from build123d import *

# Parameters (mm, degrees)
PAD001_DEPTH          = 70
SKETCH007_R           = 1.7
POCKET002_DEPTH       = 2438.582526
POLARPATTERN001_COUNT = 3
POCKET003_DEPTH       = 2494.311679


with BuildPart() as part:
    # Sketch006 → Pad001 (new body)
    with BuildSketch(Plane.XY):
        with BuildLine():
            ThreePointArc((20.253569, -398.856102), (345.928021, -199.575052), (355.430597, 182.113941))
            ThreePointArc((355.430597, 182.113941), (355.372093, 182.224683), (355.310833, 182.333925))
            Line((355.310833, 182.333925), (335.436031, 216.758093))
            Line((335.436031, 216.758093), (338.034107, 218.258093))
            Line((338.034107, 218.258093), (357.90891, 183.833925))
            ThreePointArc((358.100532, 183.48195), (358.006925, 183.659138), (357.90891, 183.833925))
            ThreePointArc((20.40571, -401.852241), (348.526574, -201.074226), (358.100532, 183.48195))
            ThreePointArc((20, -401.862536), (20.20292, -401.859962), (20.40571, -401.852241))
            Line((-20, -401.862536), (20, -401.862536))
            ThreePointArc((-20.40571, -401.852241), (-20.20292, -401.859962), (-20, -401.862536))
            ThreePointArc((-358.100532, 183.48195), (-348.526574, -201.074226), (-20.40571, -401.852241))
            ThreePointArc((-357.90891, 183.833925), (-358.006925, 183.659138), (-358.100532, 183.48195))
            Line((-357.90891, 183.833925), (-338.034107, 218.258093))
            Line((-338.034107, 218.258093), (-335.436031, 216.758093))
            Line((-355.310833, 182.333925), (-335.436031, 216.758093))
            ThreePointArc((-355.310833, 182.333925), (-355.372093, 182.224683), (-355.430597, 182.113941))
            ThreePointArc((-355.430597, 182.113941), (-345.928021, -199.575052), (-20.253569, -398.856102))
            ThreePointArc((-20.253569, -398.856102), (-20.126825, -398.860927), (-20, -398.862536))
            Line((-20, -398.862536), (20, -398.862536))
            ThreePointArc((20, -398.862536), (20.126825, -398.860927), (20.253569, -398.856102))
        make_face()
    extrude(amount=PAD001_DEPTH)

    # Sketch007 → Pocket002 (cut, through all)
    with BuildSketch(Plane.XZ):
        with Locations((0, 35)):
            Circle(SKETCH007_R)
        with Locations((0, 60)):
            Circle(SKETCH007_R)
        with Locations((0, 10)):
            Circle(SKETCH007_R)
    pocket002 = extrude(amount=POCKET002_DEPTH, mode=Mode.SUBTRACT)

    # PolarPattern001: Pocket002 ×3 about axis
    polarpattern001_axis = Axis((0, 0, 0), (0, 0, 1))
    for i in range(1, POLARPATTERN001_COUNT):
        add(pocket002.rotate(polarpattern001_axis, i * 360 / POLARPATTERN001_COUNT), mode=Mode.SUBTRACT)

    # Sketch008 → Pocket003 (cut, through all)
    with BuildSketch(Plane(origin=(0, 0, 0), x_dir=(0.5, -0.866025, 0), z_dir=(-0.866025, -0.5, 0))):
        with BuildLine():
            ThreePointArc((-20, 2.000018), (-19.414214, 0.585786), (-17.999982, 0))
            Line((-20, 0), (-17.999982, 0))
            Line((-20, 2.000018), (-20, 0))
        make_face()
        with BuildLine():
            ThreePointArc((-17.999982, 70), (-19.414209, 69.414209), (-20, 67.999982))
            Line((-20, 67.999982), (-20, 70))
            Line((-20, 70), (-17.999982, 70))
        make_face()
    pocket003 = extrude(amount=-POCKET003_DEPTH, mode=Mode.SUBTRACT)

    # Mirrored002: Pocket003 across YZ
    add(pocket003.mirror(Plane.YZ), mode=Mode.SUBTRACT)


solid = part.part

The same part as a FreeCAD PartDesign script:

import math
import FreeCAD as App
import Part
import Sketcher

V = App.Vector
Q = App.Units.Quantity

doc = App.newDocument("Part")
body = doc.addObject("PartDesign::Body", "Body")

sketch1 = doc.addObject("Sketcher::SketchObject", "Sketch")
body.addObject(sketch1)
sketch1.AttachmentSupport = (doc.XY_Plane, [""])
sketch1.MapMode = "FlatFace"
sketch1.addGeometry(Part.ArcOfCircle(Part.Circle(V(0, 0, 0), V(0, 0, 1), 399.37), math.radians(-87.093067), math.radians(27.129491)), False)
sketch1.addGeometry(Part.ArcOfCircle(Part.Circle(V(19.99998, -393.861869, 0), V(0, 0, 1), 5.000667), math.radians(-89.999775), math.radians(-87.093229)), False)
sketch1.addGeometry(Part.LineSegment(V(20, -398.862536, 0), V(-20, -398.862536, 0)), False)
sketch1.addGeometry(Part.ArcOfCircle(Part.Circle(V(-19.99998, -393.861869, 0), V(0, 0, 1), 5.000667), math.radians(-92.906771), math.radians(-90.000225)), False)
sketch1.addGeometry(Part.ArcOfCircle(Part.Circle(V(0, 0, 0), V(0, 0, 1), 399.37), math.radians(152.870509), math.radians(267.093067)), False)
sketch1.addGeometry(Part.ArcOfCircle(Part.Circle(V(-350.981337, 179.834262, 0), V(0, 0, 1), 4.999285), math.radians(149.999725), math.radians(152.870637)), False)
sketch1.addGeometry(Part.LineSegment(V(-355.310833, 182.333925, 0), V(-335.436031, 216.758093, 0)), False)
sketch1.addGeometry(Part.LineSegment(V(-335.436031, 216.758093, 0), V(-338.034107, 218.258093, 0)), False)
sketch1.addGeometry(Part.LineSegment(V(-338.034107, 218.258093, 0), V(-357.90891, 183.833925, 0)), False)
sketch1.addGeometry(Part.ArcOfCircle(Part.Circle(V(-350.980401, 179.833762, 0), V(0, 0, 1), 8.000347), math.radians(150.000083), math.radians(152.870462)), False)
sketch1.addGeometry(Part.ArcOfCircle(Part.Circle(V(-0.000001, 0, 0), V(0, 0, 1), 402.369999), math.radians(152.870509), math.radians(267.093067)), False)
sketch1.addGeometry(Part.ArcOfCircle(Part.Circle(V(-20.000012, -393.863673, 0), V(0, 0, 1), 7.998863), math.radians(-92.907256), math.radians(-89.999912)), False)
sketch1.addGeometry(Part.LineSegment(V(-20, -401.862536, 0), V(20, -401.862536, 0)), False)
sketch1.addGeometry(Part.ArcOfCircle(Part.Circle(V(20.000012, -393.863673, 0), V(0, 0, 1), 7.998863), math.radians(-90.000088), math.radians(-87.092744)), False)
sketch1.addGeometry(Part.ArcOfCircle(Part.Circle(V(0.000001, 0, 0), V(0, 0, 1), 402.369999), math.radians(-87.093067), math.radians(27.129491)), False)
sketch1.addGeometry(Part.ArcOfCircle(Part.Circle(V(350.980401, 179.833762, 0), V(0, 0, 1), 8.000347), math.radians(27.129538), math.radians(29.999917)), False)
sketch1.addGeometry(Part.LineSegment(V(357.90891, 183.833925, 0), V(338.034107, 218.258093, 0)), False)
sketch1.addGeometry(Part.LineSegment(V(338.034107, 218.258093, 0), V(335.436031, 216.758093, 0)), False)
sketch1.addGeometry(Part.LineSegment(V(335.436031, 216.758093, 0), V(355.310833, 182.333925, 0)), False)
sketch1.addGeometry(Part.ArcOfCircle(Part.Circle(V(350.981337, 179.834262, 0), V(0, 0, 1), 4.999285), math.radians(27.129363), math.radians(30.000275)), False)
sketch1.addConstraint(Sketcher.Constraint("Coincident", 0, 1, 1, 2))
sketch1.addConstraint(Sketcher.Constraint("Coincident", 1, 1, 2, 1))
sketch1.addConstraint(Sketcher.Constraint("Coincident", 2, 2, 3, 2))
sketch1.addConstraint(Sketcher.Constraint("Coincident", 3, 1, 4, 2))
sketch1.addConstraint(Sketcher.Constraint("Coincident", 4, 1, 5, 2))
sketch1.addConstraint(Sketcher.Constraint("Coincident", 5, 1, 6, 1))
sketch1.addConstraint(Sketcher.Constraint("Coincident", 6, 2, 7, 1))
sketch1.addConstraint(Sketcher.Constraint("Coincident", 7, 2, 8, 1))
sketch1.addConstraint(Sketcher.Constraint("Tangent", 8, 2, 9, 1))
sketch1.addConstraint(Sketcher.Constraint("Tangent", 9, 2, 10, 1))
sketch1.addConstraint(Sketcher.Constraint("Coincident", 10, 2, 11, 1))
sketch1.addConstraint(Sketcher.Constraint("Tangent", 11, 2, 12, 1))
sketch1.addConstraint(Sketcher.Constraint("Tangent", 12, 2, 13, 1))
sketch1.addConstraint(Sketcher.Constraint("Coincident", 13, 2, 14, 1))
sketch1.addConstraint(Sketcher.Constraint("Tangent", 14, 2, 15, 1))
sketch1.addConstraint(Sketcher.Constraint("Tangent", 15, 2, 16, 1))
sketch1.addConstraint(Sketcher.Constraint("Coincident", 16, 2, 17, 1))
sketch1.addConstraint(Sketcher.Constraint("Coincident", 17, 2, 18, 1))
sketch1.addConstraint(Sketcher.Constraint("Coincident", 18, 2, 19, 2))
sketch1.addConstraint(Sketcher.Constraint("Coincident", 19, 1, 0, 2))
sketch1.addConstraint(Sketcher.Constraint("Horizontal", 2))
sketch1.addConstraint(Sketcher.Constraint("Horizontal", 12))
sketch1.addConstraint(Sketcher.Constraint("Coincident", 0, 3, -1, 1))
sketch1.addConstraint(Sketcher.Constraint("Coincident", 4, 3, -1, 1))
sketch1.addConstraint(Sketcher.Constraint("Coincident", 10, 3, -1, 1))
sketch1.addConstraint(Sketcher.Constraint("Coincident", 14, 3, -1, 1))
sketch1.addConstraint(Sketcher.Constraint("Equal", 1, 3))
sketch1.addConstraint(Sketcher.Constraint("Equal", 0, 4))
sketch1.addConstraint(Sketcher.Constraint("Equal", 11, 13))
sketch1.addConstraint(Sketcher.Constraint("Equal", 10, 14))
sketch1.addConstraint(Sketcher.Constraint("Equal", 9, 15))
sketch1.addConstraint(Sketcher.Constraint("Equal", 5, 19))
sketch1.addConstraint(Sketcher.Constraint("Symmetric", 8, 2, 15, 2, -2))
sketch1.addConstraint(Sketcher.Constraint("Symmetric", 6, 2, 17, 2, -2))
sketch1.addConstraint(Sketcher.Constraint("Symmetric", 5, 1, 18, 2, -2))
sketch1.addConstraint(Sketcher.Constraint("Perpendicular", 6, 7))
sketch1.addConstraint(Sketcher.Constraint("Perpendicular", 7, 8))
sketch1.addConstraint(Sketcher.Constraint("Perpendicular", 16, 17))
sketch1.addConstraint(Sketcher.Constraint("Horizontal", 0, 1, 3, 1))
sketch1.addConstraint(Sketcher.Constraint("Horizontal", 10, 2, 13, 2))
sketch1.addConstraint(Sketcher.Constraint("Horizontal", 4, 1, 19, 1))
sketch1.addConstraint(Sketcher.Constraint("Vertical", 2, 2, 11, 2))
sketch1.addConstraint(Sketcher.Constraint("Vertical", 1, 1, 12, 2))
sketch1.addConstraint(Sketcher.Constraint("Equal", 6, 8))
sketch1.addConstraint(Sketcher.Constraint("DistanceX", 2, 2, 2, 1, Q("40 mm")))
sketch1.addConstraint(Sketcher.Constraint("Angle", 6, Q("60.000001 deg")))
sketch1.addConstraint(Sketcher.Constraint("Radius", 0, Q("399.37 mm")))
sketch1.addConstraint(Sketcher.Constraint("Radius", 10, Q("402.369999 mm")))
sketch1.addConstraint(Sketcher.Constraint("Distance", 7, Q("3 mm")))
sketch1.addConstraint(Sketcher.Constraint("DistanceY", 11, 2, 2, 2, Q("3 mm")))
sketch1.addConstraint(Sketcher.Constraint("Radius", 1, Q("5.000667 mm")))
sketch1.addConstraint(Sketcher.Constraint("Radius", 5, Q("4.999285 mm")))
sketch1.addConstraint(Sketcher.Constraint("Radius", 9, Q("8.000347 mm")))
sketch1.addConstraint(Sketcher.Constraint("Radius", 11, Q("7.998863 mm")))
sketch1.addConstraint(Sketcher.Constraint("DistanceX", 9, 3, -1, 1, Q("350.980401 mm")))
sketch1.addConstraint(Sketcher.Constraint("DistanceY", 0, 1, -1, 1, Q("398.856102 mm")))
sketch1.addConstraint(Sketcher.Constraint("DistanceX", 17, 2, 18, 2, Q("19.874802 mm")))
sketch1.addConstraint(Sketcher.Constraint("DistanceY", -1, 1, 4, 1, Q("182.113941 mm")))
sketch1.addConstraint(Sketcher.Constraint("DistanceX", 10, 2, -1, 1, Q("20.40571 mm")))
pad1 = doc.addObject("PartDesign::Pad", "Pad")
body.addObject(pad1)
pad1.Profile = sketch1
pad1.Length = 70

sketch2 = doc.addObject("Sketcher::SketchObject", "Sketch001")
body.addObject(sketch2)
sketch2.AttachmentSupport = (doc.XZ_Plane, [""])
sketch2.MapMode = "FlatFace"
sketch2.addGeometry(Part.Circle(V(0, 35, 0), V(0, 0, 1), 1.7), False)
sketch2.addGeometry(Part.Circle(V(0, 60, 0), V(0, 0, 1), 1.7), False)
sketch2.addGeometry(Part.Circle(V(0, 10, 0), V(0, 0, 1), 1.7), False)
sketch2.addConstraint(Sketcher.Constraint("Equal", 0, 1))
sketch2.addConstraint(Sketcher.Constraint("Equal", 1, 2))
sketch2.addConstraint(Sketcher.Constraint("PointOnObject", 0, 3, -2))
sketch2.addConstraint(Sketcher.Constraint("PointOnObject", 1, 3, -2))
sketch2.addConstraint(Sketcher.Constraint("PointOnObject", 2, 3, -2))
sketch2.addConstraint(Sketcher.Constraint("Diameter", 0, Q("3.4 mm")))
sketch2.addConstraint(Sketcher.Constraint("DistanceY", -1, 1, 0, 3, Q("35 mm")))
sketch2.addConstraint(Sketcher.Constraint("DistanceY", -1, 1, 1, 3, Q("60 mm")))
sketch2.addConstraint(Sketcher.Constraint("DistanceY", -1, 1, 2, 3, Q("10 mm")))
pocket1 = doc.addObject("PartDesign::Pocket", "Pocket")
body.addObject(pocket1)
pocket1.Profile = sketch2
pocket1.Type = "ThroughAll"
pocket1.Reversed = True
doc.recompute()

polarpattern = doc.addObject("PartDesign::PolarPattern", "PolarPattern")
body.addObject(polarpattern)
polarpattern.Originals = [pocket1]
polarpattern.Axis = (doc.Z_Axis, [""])
polarpattern.Angle = 360
polarpattern.Occurrences = 3
body.Tip = polarpattern

sketch3 = doc.addObject("Sketcher::SketchObject", "Sketch002")
body.addObject(sketch3)
sketch3.Placement = App.Placement(V(0, 0, 0), App.Rotation(V(0.500000175, -0.866025303, 0), V(0, 0, 1), V(-0.866025303, -0.500000175, 0), "ZXY"))
sketch3.addGeometry(Part.ArcOfCircle(Part.Circle(V(-18.000002, 1.999999, 0), V(0, 0, 1), 1.999999), math.radians(179.999442), math.radians(270.000558)), False)
sketch3.addGeometry(Part.LineSegment(V(-20, 2.000018, 0), V(-20, 0, 0)), False)
sketch3.addGeometry(Part.LineSegment(V(-20, 0, 0), V(-17.999982, 0, 0)), False)
sketch3.addGeometry(Part.ArcOfCircle(Part.Circle(V(-17.999984, 67.999984, 0), V(0, 0, 1), 2.000016), math.radians(89.999931), math.radians(180.000069)), False)
sketch3.addGeometry(Part.LineSegment(V(-17.999982, 70, 0), V(-20, 70, 0)), False)
sketch3.addGeometry(Part.LineSegment(V(-20, 70, 0), V(-20, 67.999982, 0)), False)
sketch3.addConstraint(Sketcher.Constraint("Coincident", 0, 1, 1, 1))
sketch3.addConstraint(Sketcher.Constraint("Coincident", 1, 2, 2, 1))
sketch3.addConstraint(Sketcher.Constraint("Coincident", 2, 2, 0, 2))
sketch3.addConstraint(Sketcher.Constraint("Tangent", 3, 1, 4, 1))
sketch3.addConstraint(Sketcher.Constraint("Coincident", 4, 2, 5, 1))
sketch3.addConstraint(Sketcher.Constraint("Tangent", 5, 2, 3, 2))
sketch3.addConstraint(Sketcher.Constraint("Vertical", 1))
sketch3.addConstraint(Sketcher.Constraint("Horizontal", 2))
sketch3.addConstraint(Sketcher.Constraint("Horizontal", 4))
sketch3.addConstraint(Sketcher.Constraint("Vertical", 5))
sketch3.addConstraint(Sketcher.Constraint("PointOnObject", 1, 2, -1))
sketch3.addConstraint(Sketcher.Constraint("Vertical", 2, 2, 3, 1))
sketch3.addConstraint(Sketcher.Constraint("Vertical", 1, 2, 4, 2))
sketch3.addConstraint(Sketcher.Constraint("Equal", 4, 1))
sketch3.addConstraint(Sketcher.Constraint("Radius", 0, Q("1.999999 mm")))
sketch3.addConstraint(Sketcher.Constraint("DistanceX", 0, 3, -1, 1, Q("18.000002 mm")))
sketch3.addConstraint(Sketcher.Constraint("DistanceY", -1, 1, 3, 1, Q("70 mm")))
sketch3.addConstraint(Sketcher.Constraint("Radius", 3, Q("2.000016 mm")))
pocket2 = doc.addObject("PartDesign::Pocket", "Pocket001")
body.addObject(pocket2)
pocket2.Profile = sketch3
pocket2.Type = "ThroughAll"
doc.recompute()

mirrored = doc.addObject("PartDesign::Mirrored", "Mirrored")
body.addObject(mirrored)
mirrored.Originals = [pocket2]
mirrored.MirrorPlane = (doc.YZ_Plane, [""])
body.Tip = mirrored

doc.recompute()
